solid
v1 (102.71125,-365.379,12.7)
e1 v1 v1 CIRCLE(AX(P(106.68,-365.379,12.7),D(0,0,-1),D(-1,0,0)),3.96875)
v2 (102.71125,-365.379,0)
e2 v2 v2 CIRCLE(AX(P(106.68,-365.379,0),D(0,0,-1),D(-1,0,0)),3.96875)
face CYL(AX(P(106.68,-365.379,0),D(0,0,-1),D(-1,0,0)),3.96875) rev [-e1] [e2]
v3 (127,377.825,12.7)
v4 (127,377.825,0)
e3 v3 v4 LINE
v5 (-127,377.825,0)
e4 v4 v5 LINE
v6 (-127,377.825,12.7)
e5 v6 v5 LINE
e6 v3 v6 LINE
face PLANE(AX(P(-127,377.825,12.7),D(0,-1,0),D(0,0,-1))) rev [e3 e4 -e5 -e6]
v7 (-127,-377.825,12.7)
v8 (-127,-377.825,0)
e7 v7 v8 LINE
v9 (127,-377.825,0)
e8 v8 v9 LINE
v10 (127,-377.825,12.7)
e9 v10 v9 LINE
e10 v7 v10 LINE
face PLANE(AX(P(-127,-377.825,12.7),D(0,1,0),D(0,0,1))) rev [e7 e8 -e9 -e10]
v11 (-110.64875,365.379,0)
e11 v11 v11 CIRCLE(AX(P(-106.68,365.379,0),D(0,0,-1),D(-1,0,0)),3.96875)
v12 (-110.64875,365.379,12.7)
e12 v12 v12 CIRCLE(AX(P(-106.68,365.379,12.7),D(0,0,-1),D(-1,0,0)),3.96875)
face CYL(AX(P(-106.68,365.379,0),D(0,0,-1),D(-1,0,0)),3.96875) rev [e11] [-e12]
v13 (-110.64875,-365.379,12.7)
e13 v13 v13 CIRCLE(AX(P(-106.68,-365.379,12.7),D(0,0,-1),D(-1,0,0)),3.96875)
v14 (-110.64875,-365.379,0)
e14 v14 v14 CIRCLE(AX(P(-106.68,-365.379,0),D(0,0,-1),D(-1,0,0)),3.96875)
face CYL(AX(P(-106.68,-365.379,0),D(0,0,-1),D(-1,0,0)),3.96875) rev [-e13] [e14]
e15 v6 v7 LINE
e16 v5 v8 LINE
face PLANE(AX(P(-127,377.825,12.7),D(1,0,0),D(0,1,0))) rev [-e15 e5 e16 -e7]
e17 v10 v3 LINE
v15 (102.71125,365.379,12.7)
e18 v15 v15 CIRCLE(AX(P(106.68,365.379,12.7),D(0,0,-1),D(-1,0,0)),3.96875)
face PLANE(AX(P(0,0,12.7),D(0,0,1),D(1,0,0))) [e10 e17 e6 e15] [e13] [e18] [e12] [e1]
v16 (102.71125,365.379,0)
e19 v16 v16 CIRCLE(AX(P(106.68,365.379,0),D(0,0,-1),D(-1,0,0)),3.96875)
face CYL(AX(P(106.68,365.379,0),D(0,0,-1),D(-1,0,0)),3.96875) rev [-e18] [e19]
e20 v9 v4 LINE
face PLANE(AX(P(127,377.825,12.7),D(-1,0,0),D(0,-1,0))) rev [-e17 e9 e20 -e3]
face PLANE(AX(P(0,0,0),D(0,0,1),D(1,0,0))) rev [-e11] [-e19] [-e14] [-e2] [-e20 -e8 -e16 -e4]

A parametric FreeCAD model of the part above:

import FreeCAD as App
import Part
import Sketcher
Q = App.Units.Quantity


def add_polygon(sketch, points):
    """Adds a closed chain of lines whose ends are joined by coincident constraints."""
    first, n = sketch.GeometryCount, len(points)
    for a, b in zip(points, points[1:] + points[:1]):
        sketch.addGeometry(Part.LineSegment(App.Vector(*a, 0), App.Vector(*b, 0)), False)
    for i in range(n):
        sketch.addConstraint(Sketcher.Constraint("Coincident", first + i, 2, first + (i + 1) % n, 1))

doc = App.newDocument("Part")
body = doc.addObject("PartDesign::Body", "Body")

# Sketch on XY plane
sketch1 = body.newObject("Sketcher::SketchObject", "Sketch")
sketch1.AttachmentSupport = (doc.getObject("XY_Plane"), [""])
sketch1.MapMode = "FlatFace"
add_polygon(sketch1, [(-127, 378), (-127, -378), (127, -378), (127, 378)])  # lines 0-3
sketch1.addConstraint(Sketcher.Constraint("Vertical", 0))
sketch1.addConstraint(Sketcher.Constraint("Horizontal", 1))
sketch1.addConstraint(Sketcher.Constraint("Vertical", 2))
sketch1.addConstraint(Sketcher.Constraint("Horizontal", 3))
sketch1.addConstraint(Sketcher.Constraint("Symmetric", 0, 2, 2, 2, -1, 1))
sketch1.addConstraint(Sketcher.Constraint("DistanceX", 1, 1, 1, 2, Q("10 in")))
sketch1.addConstraint(Sketcher.Constraint("DistanceY", 0, 2, 0, 1, Q("29.75 in")))
pad1 = body.newObject("PartDesign::Pad", "Pad")
pad1.Profile = sketch1
pad1.Length = Q("0.5 in")

# Sketch on XY plane
sketch2 = body.newObject("Sketcher::SketchObject", "Sketch001")
sketch2.AttachmentSupport = (doc.getObject("XY_Plane"), [""])
sketch2.MapMode = "FlatFace"
sketch2.addGeometry(Part.Circle(App.Vector(106.7, 365.4, 0), App.Vector(0, 0, 1), 4), False)
sketch2.addGeometry(Part.Circle(App.Vector(-106.7, 365.4, 0), App.Vector(0, 0, 1), 4), False)
sketch2.addGeometry(Part.Circle(App.Vector(106.7, -365.4, 0), App.Vector(0, 0, 1), 4), False)
sketch2.addGeometry(Part.Circle(App.Vector(-106.7, -365.4, 0), App.Vector(0, 0, 1), 4), False)
sketch2.addConstraint(Sketcher.Constraint("Equal", 0, 1))
sketch2.addConstraint(Sketcher.Constraint("Equal", 1, 2))
sketch2.addConstraint(Sketcher.Constraint("Equal", 2, 3))
sketch2.addConstraint(Sketcher.Constraint("Symmetric", 1, 3, 2, 3, -1, 1))
sketch2.addConstraint(Sketcher.Constraint("Symmetric", 0, 3, 3, 3, -1, 1))
sketch2.addConstraint(Sketcher.Constraint("Symmetric", 0, 3, 1, 3, -2))
sketch2.addConstraint(Sketcher.Constraint("Diameter", 0, Q("0.3125 in")))
sketch2.addConstraint(Sketcher.Constraint("DistanceX", -1, 1, 0, 3, Q("4.2 in")))
sketch2.addConstraint(Sketcher.Constraint("DistanceY", 2, 3, 0, 3, Q("28.77 in")))
doc.recompute()
hole = body.newObject("PartDesign::Hole", "Hole")
hole.Profile = sketch2
hole.ThreadType = "None"
hole.Diameter = Q("0.3125 in")
hole.DepthType = "ThroughAll"
hole.Reversed = True

doc.recompute()
